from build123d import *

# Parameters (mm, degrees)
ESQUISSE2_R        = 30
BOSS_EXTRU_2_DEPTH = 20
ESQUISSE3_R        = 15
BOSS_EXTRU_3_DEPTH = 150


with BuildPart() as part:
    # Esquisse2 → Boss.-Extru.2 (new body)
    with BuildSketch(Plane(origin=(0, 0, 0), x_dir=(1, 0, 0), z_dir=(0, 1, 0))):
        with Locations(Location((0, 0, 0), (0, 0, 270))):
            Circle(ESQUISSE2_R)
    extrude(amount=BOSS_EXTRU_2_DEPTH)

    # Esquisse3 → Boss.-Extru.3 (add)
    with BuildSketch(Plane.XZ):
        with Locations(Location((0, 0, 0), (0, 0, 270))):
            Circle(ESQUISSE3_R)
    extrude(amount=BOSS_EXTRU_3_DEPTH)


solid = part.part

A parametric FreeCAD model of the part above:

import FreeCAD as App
import Part
import Sketcher

V = App.Vector

doc = App.newDocument("Part")
body = doc.addObject("PartDesign::Body", "Body")

sketch1 = doc.addObject("Sketcher::SketchObject", "Sketch")
body.addObject(sketch1)
sketch1.AttachmentSupport = (doc.XZ_Plane, [""])
sketch1.MapMode = "FlatFace"
sketch1.addGeometry(Part.Circle(V(0, 0, 0), V(0, 0, 1), 30), False)
sketch1.addConstraint(Sketcher.Constraint("Coincident", 0, 3, -1, 1))
sketch1.addConstraint(Sketcher.Constraint("Diameter", 0, 60.0))
pad1 = doc.addObject("PartDesign::Pad", "Pad")
body.addObject(pad1)
pad1.Profile = sketch1
pad1.Length = 20
pad1.Reversed = True

sketch2 = doc.addObject("Sketcher::SketchObject", "Sketch001")
body.addObject(sketch2)
sketch2.AttachmentSupport = (doc.XZ_Plane, [""])
sketch2.MapMode = "FlatFace"
sketch2.addGeometry(Part.Circle(V(0, 0, 0), V(0, 0, 1), 15), False)
sketch2.addConstraint(Sketcher.Constraint("Coincident", 0, 3, -1, 1))
sketch2.addConstraint(Sketcher.Constraint("Diameter", 0, 30.0))
pad2 = doc.addObject("PartDesign::Pad", "Pad001")
body.addObject(pad2)
pad2.Profile = sketch2
pad2.Length = 150

doc.recompute()
